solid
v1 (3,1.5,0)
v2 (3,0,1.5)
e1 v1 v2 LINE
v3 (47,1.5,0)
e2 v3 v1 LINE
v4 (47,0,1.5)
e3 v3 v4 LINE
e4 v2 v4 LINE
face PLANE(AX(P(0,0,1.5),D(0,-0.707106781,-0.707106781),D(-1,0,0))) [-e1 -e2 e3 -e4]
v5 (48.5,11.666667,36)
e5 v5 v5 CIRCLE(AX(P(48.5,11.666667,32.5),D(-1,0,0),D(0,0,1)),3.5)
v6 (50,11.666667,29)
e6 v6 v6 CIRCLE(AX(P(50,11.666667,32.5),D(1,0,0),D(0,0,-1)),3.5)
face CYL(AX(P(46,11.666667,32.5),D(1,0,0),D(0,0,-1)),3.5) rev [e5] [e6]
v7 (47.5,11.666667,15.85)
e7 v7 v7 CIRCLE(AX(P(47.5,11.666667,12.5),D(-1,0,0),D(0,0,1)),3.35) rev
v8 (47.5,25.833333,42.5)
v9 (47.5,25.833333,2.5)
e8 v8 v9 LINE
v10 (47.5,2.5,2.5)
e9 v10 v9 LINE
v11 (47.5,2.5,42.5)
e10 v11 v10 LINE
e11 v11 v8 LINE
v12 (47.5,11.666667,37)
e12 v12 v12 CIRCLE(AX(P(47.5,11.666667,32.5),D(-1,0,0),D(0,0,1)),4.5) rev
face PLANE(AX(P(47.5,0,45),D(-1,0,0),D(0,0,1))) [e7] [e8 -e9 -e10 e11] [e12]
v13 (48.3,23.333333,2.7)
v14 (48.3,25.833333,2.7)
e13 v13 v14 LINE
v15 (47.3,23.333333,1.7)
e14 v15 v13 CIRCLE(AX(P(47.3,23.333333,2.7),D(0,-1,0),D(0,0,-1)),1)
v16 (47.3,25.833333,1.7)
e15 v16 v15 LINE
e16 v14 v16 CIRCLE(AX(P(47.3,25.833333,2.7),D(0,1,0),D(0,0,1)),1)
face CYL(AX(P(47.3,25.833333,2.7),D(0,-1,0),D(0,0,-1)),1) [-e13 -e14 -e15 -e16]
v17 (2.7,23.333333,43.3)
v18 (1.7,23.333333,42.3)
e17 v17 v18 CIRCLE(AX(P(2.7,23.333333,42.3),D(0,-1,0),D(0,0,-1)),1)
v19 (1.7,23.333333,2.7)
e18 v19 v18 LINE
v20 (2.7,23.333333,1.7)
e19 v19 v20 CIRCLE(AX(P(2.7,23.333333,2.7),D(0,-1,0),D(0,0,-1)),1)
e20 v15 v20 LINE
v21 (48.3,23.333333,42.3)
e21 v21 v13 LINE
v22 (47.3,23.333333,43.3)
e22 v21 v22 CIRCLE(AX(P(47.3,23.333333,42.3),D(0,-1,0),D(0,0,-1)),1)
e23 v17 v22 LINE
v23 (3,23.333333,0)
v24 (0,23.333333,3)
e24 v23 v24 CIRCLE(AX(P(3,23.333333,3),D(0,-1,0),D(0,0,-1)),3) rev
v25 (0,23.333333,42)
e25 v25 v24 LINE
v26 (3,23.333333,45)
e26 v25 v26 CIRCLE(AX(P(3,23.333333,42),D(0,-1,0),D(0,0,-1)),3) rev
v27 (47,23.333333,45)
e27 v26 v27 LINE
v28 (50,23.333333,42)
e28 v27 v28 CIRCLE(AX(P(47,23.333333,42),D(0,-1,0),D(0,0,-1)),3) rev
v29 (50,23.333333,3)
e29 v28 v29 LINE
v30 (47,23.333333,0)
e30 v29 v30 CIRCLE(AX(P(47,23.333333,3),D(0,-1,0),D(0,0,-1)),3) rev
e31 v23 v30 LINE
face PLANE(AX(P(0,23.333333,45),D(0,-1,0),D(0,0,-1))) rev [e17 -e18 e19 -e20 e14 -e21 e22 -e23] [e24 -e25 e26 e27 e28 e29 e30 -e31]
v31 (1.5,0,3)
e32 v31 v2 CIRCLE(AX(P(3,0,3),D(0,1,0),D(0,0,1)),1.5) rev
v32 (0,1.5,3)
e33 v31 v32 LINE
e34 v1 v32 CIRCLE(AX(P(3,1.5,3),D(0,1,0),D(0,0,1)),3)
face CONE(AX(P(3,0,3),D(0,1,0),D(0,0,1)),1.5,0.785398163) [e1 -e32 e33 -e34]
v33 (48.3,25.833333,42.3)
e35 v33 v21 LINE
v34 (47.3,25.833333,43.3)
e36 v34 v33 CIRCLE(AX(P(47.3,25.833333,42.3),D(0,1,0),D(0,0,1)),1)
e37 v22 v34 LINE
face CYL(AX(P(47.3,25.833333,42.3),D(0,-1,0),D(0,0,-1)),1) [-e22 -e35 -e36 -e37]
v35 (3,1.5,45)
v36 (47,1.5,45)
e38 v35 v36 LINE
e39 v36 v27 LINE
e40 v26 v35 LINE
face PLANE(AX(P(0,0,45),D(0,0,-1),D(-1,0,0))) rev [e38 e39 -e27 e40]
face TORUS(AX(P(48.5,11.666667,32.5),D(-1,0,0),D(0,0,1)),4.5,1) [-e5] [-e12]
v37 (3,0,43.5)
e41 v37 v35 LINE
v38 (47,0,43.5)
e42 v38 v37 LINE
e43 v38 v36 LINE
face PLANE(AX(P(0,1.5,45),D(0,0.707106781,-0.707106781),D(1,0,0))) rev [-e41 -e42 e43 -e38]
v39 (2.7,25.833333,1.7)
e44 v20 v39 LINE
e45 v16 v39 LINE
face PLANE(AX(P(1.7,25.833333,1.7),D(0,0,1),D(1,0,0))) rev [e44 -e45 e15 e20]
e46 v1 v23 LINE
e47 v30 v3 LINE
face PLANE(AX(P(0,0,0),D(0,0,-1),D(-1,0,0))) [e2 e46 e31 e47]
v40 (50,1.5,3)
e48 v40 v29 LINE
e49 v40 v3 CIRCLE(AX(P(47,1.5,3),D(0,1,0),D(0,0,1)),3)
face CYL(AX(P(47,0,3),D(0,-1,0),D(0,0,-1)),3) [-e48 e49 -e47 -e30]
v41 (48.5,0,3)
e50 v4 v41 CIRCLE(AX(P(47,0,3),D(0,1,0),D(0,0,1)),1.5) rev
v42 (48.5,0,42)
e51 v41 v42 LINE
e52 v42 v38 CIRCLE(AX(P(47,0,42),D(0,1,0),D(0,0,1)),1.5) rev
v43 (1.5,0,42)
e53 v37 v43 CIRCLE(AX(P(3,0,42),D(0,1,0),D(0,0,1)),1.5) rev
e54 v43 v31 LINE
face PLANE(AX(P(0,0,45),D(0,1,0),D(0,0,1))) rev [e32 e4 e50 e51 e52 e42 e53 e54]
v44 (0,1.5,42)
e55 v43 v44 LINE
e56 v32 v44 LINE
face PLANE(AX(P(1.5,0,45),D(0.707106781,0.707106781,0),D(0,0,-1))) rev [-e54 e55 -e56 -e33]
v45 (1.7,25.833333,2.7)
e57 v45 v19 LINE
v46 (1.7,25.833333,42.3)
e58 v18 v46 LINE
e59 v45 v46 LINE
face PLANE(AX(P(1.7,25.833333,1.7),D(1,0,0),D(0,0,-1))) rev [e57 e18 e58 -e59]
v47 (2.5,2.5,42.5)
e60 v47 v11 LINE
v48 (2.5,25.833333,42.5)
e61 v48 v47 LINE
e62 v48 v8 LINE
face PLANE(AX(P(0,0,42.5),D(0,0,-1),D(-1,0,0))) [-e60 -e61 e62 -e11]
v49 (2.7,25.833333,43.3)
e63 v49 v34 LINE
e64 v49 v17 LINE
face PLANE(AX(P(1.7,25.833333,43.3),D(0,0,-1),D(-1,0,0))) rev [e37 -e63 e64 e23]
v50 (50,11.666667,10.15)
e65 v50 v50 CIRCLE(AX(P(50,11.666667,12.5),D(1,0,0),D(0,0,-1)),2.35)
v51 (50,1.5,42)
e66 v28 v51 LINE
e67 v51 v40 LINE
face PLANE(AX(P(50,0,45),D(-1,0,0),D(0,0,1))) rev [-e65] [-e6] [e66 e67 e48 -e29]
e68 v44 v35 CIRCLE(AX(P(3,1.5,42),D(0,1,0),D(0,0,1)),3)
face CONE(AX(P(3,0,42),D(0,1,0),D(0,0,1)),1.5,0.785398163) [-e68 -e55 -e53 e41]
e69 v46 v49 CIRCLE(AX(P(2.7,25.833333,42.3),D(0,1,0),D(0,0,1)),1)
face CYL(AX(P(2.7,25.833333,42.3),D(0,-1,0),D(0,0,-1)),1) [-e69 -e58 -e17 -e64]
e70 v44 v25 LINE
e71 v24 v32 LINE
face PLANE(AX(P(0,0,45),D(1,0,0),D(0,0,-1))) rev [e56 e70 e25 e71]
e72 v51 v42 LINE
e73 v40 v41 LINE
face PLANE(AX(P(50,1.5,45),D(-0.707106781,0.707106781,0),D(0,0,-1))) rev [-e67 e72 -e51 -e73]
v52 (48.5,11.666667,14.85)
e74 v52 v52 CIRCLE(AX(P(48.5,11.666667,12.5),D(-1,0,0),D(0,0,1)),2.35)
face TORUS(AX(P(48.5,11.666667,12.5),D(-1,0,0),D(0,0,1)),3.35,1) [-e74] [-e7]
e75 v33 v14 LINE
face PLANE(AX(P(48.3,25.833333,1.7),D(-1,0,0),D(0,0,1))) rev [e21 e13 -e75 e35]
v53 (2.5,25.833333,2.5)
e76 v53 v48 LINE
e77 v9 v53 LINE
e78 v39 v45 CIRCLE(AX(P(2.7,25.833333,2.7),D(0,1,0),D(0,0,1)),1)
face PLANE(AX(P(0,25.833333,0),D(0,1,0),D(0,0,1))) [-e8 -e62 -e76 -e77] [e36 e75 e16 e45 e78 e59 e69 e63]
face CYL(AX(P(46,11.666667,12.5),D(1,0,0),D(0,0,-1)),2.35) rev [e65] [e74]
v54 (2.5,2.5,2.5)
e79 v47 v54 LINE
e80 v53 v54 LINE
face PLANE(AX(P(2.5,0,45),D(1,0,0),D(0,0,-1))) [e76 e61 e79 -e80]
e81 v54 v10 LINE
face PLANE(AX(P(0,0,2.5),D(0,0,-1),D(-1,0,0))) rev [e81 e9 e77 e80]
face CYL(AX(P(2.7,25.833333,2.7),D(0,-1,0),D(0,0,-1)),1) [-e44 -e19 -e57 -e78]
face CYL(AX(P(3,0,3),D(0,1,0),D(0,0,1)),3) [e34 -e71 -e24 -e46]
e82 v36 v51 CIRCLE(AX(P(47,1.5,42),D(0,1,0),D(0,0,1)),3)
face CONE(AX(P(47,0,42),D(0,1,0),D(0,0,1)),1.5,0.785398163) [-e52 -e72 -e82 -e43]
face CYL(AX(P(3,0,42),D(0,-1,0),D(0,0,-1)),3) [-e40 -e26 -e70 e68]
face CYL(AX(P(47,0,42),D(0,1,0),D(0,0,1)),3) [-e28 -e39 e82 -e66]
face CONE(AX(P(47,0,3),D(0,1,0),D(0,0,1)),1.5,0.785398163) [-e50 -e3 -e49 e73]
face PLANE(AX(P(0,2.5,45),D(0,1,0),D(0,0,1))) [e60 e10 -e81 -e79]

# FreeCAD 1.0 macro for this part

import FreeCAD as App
import Part
import Sketcher

V = App.Vector


def edges_at(feature, points):
    """Names of the edges that pass closest to the given points."""
    edges = feature.Shape.Edges
    near = lambda p: min(range(len(edges)), key=lambda i: edges[i].distToShape(Part.Vertex(*p))[0])
    return sorted({f"Edge{near(p) + 1}" for p in points})


def faces_at(feature, points):
    """Names of the faces that lie closest to the given points."""
    faces = feature.Shape.Faces
    near = lambda p: min(range(len(faces)), key=lambda i: faces[i].distToShape(Part.Vertex(*p))[0])
    return sorted({f"Face{near(p) + 1}" for p in points})

doc = App.newDocument("Part")
body = doc.addObject("PartDesign::Body", "Body")

# Sketch on XY plane
sketch1 = doc.addObject("Sketcher::SketchObject", "Sketch")
body.addObject(sketch1)
sketch1.AttachmentSupport = (doc.XY_Plane, [""])
sketch1.MapMode = "FlatFace"
sketch1.addGeometry([
    Part.LineSegment(V(0, 35, 0), V(0, 0, 0)),
    Part.LineSegment(V(0, 0, 0), V(50, 0, 0)),
    Part.LineSegment(V(50, 0, 0), V(50, 35, 0)),
    Part.LineSegment(V(50, 35, 0), V(0, 35, 0)),
], False)
sketch1.addConstraint([
    Sketcher.Constraint("Coincident", 0, 2, 1, 1),
    Sketcher.Constraint("Coincident", 1, 2, 2, 1),
    Sketcher.Constraint("Coincident", 2, 2, 3, 1),
    Sketcher.Constraint("Coincident", 3, 2, 0, 1),
    Sketcher.Constraint("Vertical", 0),
    Sketcher.Constraint("Horizontal", 1),
    Sketcher.Constraint("Vertical", 2),
    Sketcher.Constraint("Horizontal", 3),
    Sketcher.Constraint("Coincident", 0, 2, -1, 1),
    Sketcher.Constraint("DistanceX", 1, 1, 1, 2, 50.0),
    Sketcher.Constraint("DistanceY", 0, 2, 0, 1, 35.0),
])
pad1 = doc.addObject("PartDesign::Pad", "Pad")
body.addObject(pad1)
pad1.Profile = sketch1
pad1.Length = 45

# Sketch on YZ plane
sketch2 = doc.addObject("Sketcher::SketchObject", "Sketch001")
body.addObject(sketch2)
sketch2.AttachmentSupport = (doc.YZ_Plane, [""])
sketch2.MapMode = "FlatFace"
sketch2.AttachmentOffset = App.Placement(V(0, 0, 50), App.Rotation())
sketch2.addGeometry([
    Part.LineSegment(V(35, 45, 0), V(23.333333, 45, 0)),
    Part.LineSegment(V(23.333333, 45, 0), V(23.333333, 0, 0)),
    Part.LineSegment(V(23.333333, 0, 0), V(35, 0, 0)),
    Part.LineSegment(V(35, 0, 0), V(35, 45, 0)),
], False)
sketch2.addConstraint([
    Sketcher.Constraint("Coincident", 0, 2, 1, 1),
    Sketcher.Constraint("Coincident", 1, 2, 2, 1),
    Sketcher.Constraint("Coincident", 2, 2, 3, 1),
    Sketcher.Constraint("Coincident", 3, 2, 0, 1),
    Sketcher.Constraint("Horizontal", 0),
    Sketcher.Constraint("Vertical", 1),
    Sketcher.Constraint("Horizontal", 2),
    Sketcher.Constraint("Vertical", 3),
    Sketcher.Constraint("PointOnObject", 1, 2, -1),
    Sketcher.Constraint("DistanceY", 1, 2, 1, 1, 45.0),
    Sketcher.Constraint("DistanceX", -1, 1, 2, 2, 35.0),
    Sketcher.Constraint("DistanceX", 0, 2, 0, 1, 11.666667),
])
pocket1 = doc.addObject("PartDesign::Pocket", "Pocket")
body.addObject(pocket1)
pocket1.Profile = sketch2
pocket1.Type = "ThroughAll"
doc.recompute()

thickness = doc.addObject("PartDesign::Thickness", "Thickness")
body.addObject(thickness)
thickness.Base = (pocket1, faces_at(pocket1, [(25, 23.333, 22.5)]))
thickness.Value = 2.5
thickness.Reversed = True
thickness.Join = "Intersection"

# Sketch on YZ plane
sketch3 = doc.addObject("Sketcher::SketchObject", "Sketch002")
body.addObject(sketch3)
sketch3.AttachmentSupport = (doc.YZ_Plane, [""])
sketch3.MapMode = "FlatFace"
sketch3.AttachmentOffset = App.Placement(V(0, 0, 50), App.Rotation())
sketch3.addGeometry([
    Part.Circle(V(11.666667, 32.5, 0), V(0, 0, 1), 3.5),
    Part.Circle(V(11.666667, 12.5, 0), V(0, 0, 1), 2.35),
], False)
sketch3.addConstraint([
    Sketcher.Constraint("Vertical", 0, 3, 1, 3),
    Sketcher.Constraint("Diameter", 0, 7.0),
    Sketcher.Constraint("Diameter", 1, 4.7),
    Sketcher.Constraint("DistanceY", 1, 3, 0, 3, 20.0),
    Sketcher.Constraint("DistanceY", -1, 1, 0, 3, 32.5),
    Sketcher.Constraint("DistanceX", -1, 1, 0, 3, 11.666667),
])
pocket2 = doc.addObject("PartDesign::Pocket", "Pocket001")
body.addObject(pocket2)
pocket2.Profile = sketch3
pocket2.Length = 4

# Sketch on XZ plane
sketch4 = doc.addObject("Sketcher::SketchObject", "Sketch003")
body.addObject(sketch4)
sketch4.AttachmentSupport = (doc.XZ_Plane, [""])
sketch4.MapMode = "FlatFace"
sketch4.AttachmentOffset = App.Placement(V(0, 0, -23.333333), App.Rotation())
sketch4.addGeometry([
    Part.LineSegment(V(1.7, 1.7, 0), V(1.7, 43.3, 0)),  # 0
    Part.LineSegment(V(1.7, 43.3, 0), V(48.3, 43.3, 0)),  # 1
    Part.LineSegment(V(48.3, 43.3, 0), V(48.3, 1.7, 0)),  # 2
    Part.LineSegment(V(48.3, 1.7, 0), V(1.7, 1.7, 0)),  # 3
    Part.LineSegment(V(47.5, 42.5, 0), V(2.5, 42.5, 0)),  # 4
    Part.LineSegment(V(2.5, 42.5, 0), V(2.5, 2.5, 0)),  # 5
    Part.LineSegment(V(2.5, 2.5, 0), V(47.5, 2.5, 0)),  # 6
    Part.LineSegment(V(47.5, 2.5, 0), V(47.5, 42.5, 0)),  # 7
], False)
sketch4.addConstraint([
    Sketcher.Constraint("Coincident", 0, 2, 1, 1),
    Sketcher.Constraint("Coincident", 1, 2, 2, 1),
    Sketcher.Constraint("Coincident", 2, 2, 3, 1),
    Sketcher.Constraint("Coincident", 3, 2, 0, 1),
    Sketcher.Constraint("Coincident", 4, 2, 5, 1),
    Sketcher.Constraint("Coincident", 5, 2, 6, 1),
    Sketcher.Constraint("Coincident", 6, 2, 7, 1),
    Sketcher.Constraint("Coincident", 7, 2, 4, 1),
    Sketcher.Constraint("Vertical", 0),
    Sketcher.Constraint("Horizontal", 1),
    Sketcher.Constraint("Vertical", 2),
    Sketcher.Constraint("Horizontal", 3),
    Sketcher.Constraint("Horizontal", 4),
    Sketcher.Constraint("Vertical", 5),
    Sketcher.Constraint("Horizontal", 6),
    Sketcher.Constraint("Vertical", 7),
    Sketcher.Constraint("DistanceX", 4, 2, 4, 1, 45.0),
    Sketcher.Constraint("DistanceY", 5, 2, 5, 1, 40.0),
    Sketcher.Constraint("DistanceX", 1, 1, 1, 2, 46.6),
    Sketcher.Constraint("DistanceY", 0, 1, 0, 2, 41.6),
    Sketcher.Constraint("DistanceX", -1, 1, 0, 2, 1.7),
    Sketcher.Constraint("DistanceY", -1, 1, 0, 2, 43.3),
    Sketcher.Constraint("DistanceX", -1, 1, 4, 2, 2.5),
    Sketcher.Constraint("DistanceY", -1, 1, 4, 2, 42.5),
])
pad2 = doc.addObject("PartDesign::Pad", "Pad001")
body.addObject(pad2)
pad2.Profile = sketch4
pad2.Length = 2.5
pad2.Reversed = True
doc.recompute()

fillet = doc.addObject("PartDesign::Fillet", "Fillet")
body.addObject(fillet)
fillet.Base = (pad2, edges_at(pad2, [
    (50, 11.667, 45),
    (0, 11.667, 0),
    (0, 11.667, 45),
    (50, 11.667, 0),
]))
fillet.Radius = 3
doc.recompute()

fillet2 = doc.addObject("PartDesign::Fillet", "Fillet001")
body.addObject(fillet2)
fillet2.Base = (fillet, edges_at(fillet, [
    (1.7, 24.583, 1.7),
    (1.7, 24.583, 43.3),
    (48.3, 24.583, 43.3),
    (48.3, 24.583, 1.7),
]))
fillet2.Radius = 1
doc.recompute()

chamfer = doc.addObject("PartDesign::Chamfer", "Chamfer")
body.addObject(chamfer)
chamfer.Base = (fillet2, edges_at(fillet2, [
    (49.121, 0, 0.879),
    (0.879, 0, 0.879),
    (0, 0, 22.5),
    (25, 0, 0),
    (50, 0, 22.5),
    (25, 0, 45),
    (0.879, 0, 44.121),
    (49.121, 0, 44.121),
]))
chamfer.Size = 1.5
doc.recompute()

fillet3 = doc.addObject("PartDesign::Fillet", "Fillet002")
body.addObject(fillet3)
fillet3.Base = (chamfer, edges_at(chamfer, [(47.5, 11.667, 36), (47.5, 11.667, 14.85)]))
fillet3.Radius = 1

doc.recompute()
